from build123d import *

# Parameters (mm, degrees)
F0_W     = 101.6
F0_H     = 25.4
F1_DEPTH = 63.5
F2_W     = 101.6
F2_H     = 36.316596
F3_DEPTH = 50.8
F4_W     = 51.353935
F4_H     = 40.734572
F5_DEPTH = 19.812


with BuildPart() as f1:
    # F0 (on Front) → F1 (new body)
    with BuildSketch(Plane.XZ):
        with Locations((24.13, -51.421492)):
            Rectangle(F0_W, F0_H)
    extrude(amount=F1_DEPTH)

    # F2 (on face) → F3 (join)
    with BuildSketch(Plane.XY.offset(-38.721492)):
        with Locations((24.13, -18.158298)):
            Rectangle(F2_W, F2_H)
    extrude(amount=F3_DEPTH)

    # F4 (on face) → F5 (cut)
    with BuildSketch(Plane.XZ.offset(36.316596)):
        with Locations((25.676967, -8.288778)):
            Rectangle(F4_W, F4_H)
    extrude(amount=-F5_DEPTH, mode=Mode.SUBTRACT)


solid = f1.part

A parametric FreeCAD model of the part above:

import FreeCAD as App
import Part
import Sketcher
from FreeCAD import Vector
Q = App.Units.Quantity


def add_polygon(sketch, points):
    """Adds a closed chain of lines whose ends are joined by coincident constraints."""
    first, n = sketch.GeometryCount, len(points)
    for a, b in zip(points, points[1:] + points[:1]):
        sketch.addGeometry(Part.LineSegment(App.Vector(*a, 0), App.Vector(*b, 0)), False)
    for i in range(n):
        sketch.addConstraint(Sketcher.Constraint("Coincident", first + i, 2, first + (i + 1) % n, 1))

doc = App.newDocument("Part")
body = doc.addObject("PartDesign::Body", "Body")

sketch1 = body.newObject("Sketcher::SketchObject", "Sketch")
sketch1.AttachmentSupport = (doc.getObject("XZ_Plane"), [""])
sketch1.MapMode = "FlatFace"
add_polygon(sketch1, [(-26.67, -38.721492), (-26.67, -64.121492), (74.93, -64.121492), (74.93, -38.721492)])
sketch1.addConstraint(Sketcher.Constraint("Vertical", 0))
sketch1.addConstraint(Sketcher.Constraint("Horizontal", 1))
sketch1.addConstraint(Sketcher.Constraint("Vertical", 2))
sketch1.addConstraint(Sketcher.Constraint("Horizontal", 3))
sketch1.addConstraint(Sketcher.Constraint("DistanceX", 1, 1, 1, 2, Q("4 in")))
sketch1.addConstraint(Sketcher.Constraint("DistanceY", 0, 2, 0, 1, Q("1 in")))
sketch1.addConstraint(Sketcher.Constraint("DistanceX", 0, 2, -1, 1, Q("1.05 in")))
sketch1.addConstraint(Sketcher.Constraint("DistanceY", 2, 2, -1, 1, 38.721492))
pad1 = body.newObject("PartDesign::Pad", "Pad")
pad1.Profile = sketch1
pad1.Length = Q("2.5 in")

sketch2 = body.newObject("Sketcher::SketchObject", "Sketch001")
sketch2.AttachmentSupport = (doc.getObject("XY_Plane"), [""])
sketch2.MapMode = "FlatFace"
sketch2.AttachmentOffset = App.Placement(Vector(0, 0, -38.721492), App.Rotation())
add_polygon(sketch2, [(-26.67, 0), (-26.67, -36.316596), (74.93, -36.316596), (74.93, 0)])
sketch2.addConstraint(Sketcher.Constraint("Vertical", 0))
sketch2.addConstraint(Sketcher.Constraint("Horizontal", 1))
sketch2.addConstraint(Sketcher.Constraint("Vertical", 2))
sketch2.addConstraint(Sketcher.Constraint("Horizontal", 3))
sketch2.addConstraint(Sketcher.Constraint("PointOnObject", 2, 2, -1))
sketch2.addConstraint(Sketcher.Constraint("DistanceX", 1, 1, 1, 2, Q("4 in")))
sketch2.addConstraint(Sketcher.Constraint("DistanceX", 0, 2, -1, 1, Q("1.05 in")))
sketch2.addConstraint(Sketcher.Constraint("DistanceY", 0, 2, 0, 1, 36.316596))
pad2 = body.newObject("PartDesign::Pad", "Pad001")
pad2.Profile = sketch2
pad2.Length = Q("2 in")

sketch3 = body.newObject("Sketcher::SketchObject", "Sketch002")
sketch3.AttachmentSupport = (doc.getObject("XZ_Plane"), [""])
sketch3.MapMode = "FlatFace"
sketch3.AttachmentOffset = App.Placement(Vector(0, 0, 36.316596), App.Rotation())
add_polygon(sketch3, [(0, 12.078508), (0, -28.656064), (51.353935, -28.656064), (51.353935, 12.078508)])
sketch3.addConstraint(Sketcher.Constraint("Vertical", 0))
sketch3.addConstraint(Sketcher.Constraint("Horizontal", 1))
sketch3.addConstraint(Sketcher.Constraint("Vertical", 2))
sketch3.addConstraint(Sketcher.Constraint("Horizontal", 3))
sketch3.addConstraint(Sketcher.Constraint("PointOnObject", 0, 2, -2))
sketch3.addConstraint(Sketcher.Constraint("DistanceX", 1, 1, 1, 2, 51.353935))
sketch3.addConstraint(Sketcher.Constraint("DistanceY", 0, 2, 0, 1, 40.734572))
sketch3.addConstraint(Sketcher.Constraint("DistanceY", 0, 2, -1, 1, 28.656064))
pocket1 = body.newObject("PartDesign::Pocket", "Pocket")
pocket1.Profile = sketch3
pocket1.Length = Q("0.78 in")

doc.recompute()
